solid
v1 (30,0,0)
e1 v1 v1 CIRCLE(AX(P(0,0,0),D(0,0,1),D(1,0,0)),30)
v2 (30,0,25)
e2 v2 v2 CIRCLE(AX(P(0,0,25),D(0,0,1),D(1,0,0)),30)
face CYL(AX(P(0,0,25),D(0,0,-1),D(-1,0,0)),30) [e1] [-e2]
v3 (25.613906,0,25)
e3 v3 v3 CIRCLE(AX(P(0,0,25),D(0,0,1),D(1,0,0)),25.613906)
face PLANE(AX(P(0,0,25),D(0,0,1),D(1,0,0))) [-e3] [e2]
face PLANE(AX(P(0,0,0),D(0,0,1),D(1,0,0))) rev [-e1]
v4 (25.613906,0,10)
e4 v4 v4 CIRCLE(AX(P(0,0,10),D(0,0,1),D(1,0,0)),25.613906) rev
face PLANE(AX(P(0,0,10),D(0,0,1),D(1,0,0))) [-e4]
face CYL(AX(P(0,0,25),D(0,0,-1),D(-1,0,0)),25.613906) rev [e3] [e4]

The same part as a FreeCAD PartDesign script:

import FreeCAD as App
import Part
import Sketcher
from FreeCAD import Vector
Q = App.Units.Quantity

doc = App.newDocument("Part")
body = doc.addObject("PartDesign::Body", "Body")

sketch1 = doc.addObject("Sketcher::SketchObject", "Sketch")
body.addObject(sketch1)
sketch1.AttachmentSupport = (doc.XY_Plane, [""])
sketch1.MapMode = "FlatFace"
sketch1.addGeometry(Part.Circle(Vector(0, 0, 0), Vector(0, 0, 1), 26), False)
sketch1.addConstraint([
    Sketcher.Constraint("Coincident", 0, 3, -1, 1),
    Sketcher.Constraint("Diameter", 0, Q("51.227812 mm")),
])
pad1 = doc.addObject("PartDesign::Pad", "Pad")
body.addObject(pad1)
pad1.Profile = sketch1
pad1.Length = 10

sketch2 = doc.addObject("Sketcher::SketchObject", "Sketch001")
body.addObject(sketch2)
sketch2.AttachmentSupport = (doc.XY_Plane, [""])
sketch2.MapMode = "FlatFace"
sketch2.addGeometry([
    Part.Circle(Vector(0, 0, 0), Vector(0, 0, 1), 30),
    Part.Circle(Vector(0, 0, 0), Vector(0, 0, 1), 26),
], False)
sketch2.addConstraint([
    Sketcher.Constraint("Coincident", 0, 3, -1, 1),
    Sketcher.Constraint("Coincident", 1, 3, -1, 1),
    Sketcher.Constraint("Diameter", 0, Q("60 mm")),
    Sketcher.Constraint("Diameter", 1, Q("51.227812 mm")),
])
pad2 = doc.addObject("PartDesign::Pad", "Pad001")
body.addObject(pad2)
pad2.Profile = sketch2
pad2.Length = 25

doc.recompute()
